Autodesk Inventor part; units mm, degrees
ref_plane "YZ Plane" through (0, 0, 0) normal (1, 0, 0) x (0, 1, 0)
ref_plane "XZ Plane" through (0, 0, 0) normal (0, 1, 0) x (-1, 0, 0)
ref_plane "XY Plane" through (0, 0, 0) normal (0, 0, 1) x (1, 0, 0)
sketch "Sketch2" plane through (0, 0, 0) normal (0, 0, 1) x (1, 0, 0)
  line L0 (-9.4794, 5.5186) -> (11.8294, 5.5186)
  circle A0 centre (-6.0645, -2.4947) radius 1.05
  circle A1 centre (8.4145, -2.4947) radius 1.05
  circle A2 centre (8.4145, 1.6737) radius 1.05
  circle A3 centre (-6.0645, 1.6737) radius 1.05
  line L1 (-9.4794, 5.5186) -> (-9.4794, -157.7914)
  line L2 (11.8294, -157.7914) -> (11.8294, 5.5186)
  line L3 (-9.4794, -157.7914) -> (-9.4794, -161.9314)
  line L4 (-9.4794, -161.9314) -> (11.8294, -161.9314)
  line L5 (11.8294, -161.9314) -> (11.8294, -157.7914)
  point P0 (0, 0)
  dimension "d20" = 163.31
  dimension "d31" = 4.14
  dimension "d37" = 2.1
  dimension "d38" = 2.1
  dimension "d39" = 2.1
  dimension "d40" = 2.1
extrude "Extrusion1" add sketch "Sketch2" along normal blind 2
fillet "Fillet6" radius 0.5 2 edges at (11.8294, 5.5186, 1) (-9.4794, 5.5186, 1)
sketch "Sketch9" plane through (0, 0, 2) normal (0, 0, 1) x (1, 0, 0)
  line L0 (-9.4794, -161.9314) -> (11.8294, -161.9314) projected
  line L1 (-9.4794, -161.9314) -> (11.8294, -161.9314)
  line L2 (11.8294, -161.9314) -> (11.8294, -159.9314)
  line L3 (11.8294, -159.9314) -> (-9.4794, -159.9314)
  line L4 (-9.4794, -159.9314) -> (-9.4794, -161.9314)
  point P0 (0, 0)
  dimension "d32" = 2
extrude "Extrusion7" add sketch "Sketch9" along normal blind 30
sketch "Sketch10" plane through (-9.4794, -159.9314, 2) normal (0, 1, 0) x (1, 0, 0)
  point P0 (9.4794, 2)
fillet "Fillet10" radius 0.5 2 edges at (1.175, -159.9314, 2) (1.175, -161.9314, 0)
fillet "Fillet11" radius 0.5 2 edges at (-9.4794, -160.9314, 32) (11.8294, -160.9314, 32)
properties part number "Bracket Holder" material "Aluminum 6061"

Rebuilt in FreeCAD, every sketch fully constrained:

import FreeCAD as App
import Part
import Sketcher
from FreeCAD import Vector
Q = App.Units.Quantity


def edges_at(feature, points):
    """Names of the edges that pass closest to the given points."""
    edges = feature.Shape.Edges
    near = lambda p: min(range(len(edges)), key=lambda i: edges[i].distToShape(Part.Vertex(*p))[0])
    return sorted({f"Edge{near(p) + 1}" for p in points})


def add_polygon(sketch, points):
    """Adds a closed chain of lines whose ends are joined by coincident constraints."""
    first, n = sketch.GeometryCount, len(points)
    for a, b in zip(points, points[1:] + points[:1]):
        sketch.addGeometry(Part.LineSegment(App.Vector(*a, 0), App.Vector(*b, 0)), False)
    for i in range(n):
        sketch.addConstraint(Sketcher.Constraint("Coincident", first + i, 2, first + (i + 1) % n, 1))

doc = App.newDocument("Part")
params = doc.addObject("Spreadsheet::Sheet", "Params")
for row, (alias, value) in enumerate([
    ("sketch1_diameter", "2.1 mm"),
    ("sketch1_height", "167.45 mm"),
    ("pad1_length", "2 mm"),
    ("fillet_radius", "0.5 mm"),
    ("sketch2_height", "2 mm"),
    ("pad2_length", "30 mm"),
    ("fillet2_radius", "0.5 mm"),
    ("fillet3_radius", "0.5 mm"),
], start=1):
    params.set(f"A{row}", alias)
    params.set(f"B{row}", "=" + value)
    params.setAlias(f"B{row}", alias)

body = doc.addObject("PartDesign::Body", "Body")

# Sketch on XY plane
sketch1 = body.newObject("Sketcher::SketchObject", "Sketch")
sketch1.AttachmentSupport = (doc.getObject("XY_Plane"), [""])
sketch1.MapMode = "FlatFace"
add_polygon(sketch1, [(11.8, 5.5), (-9.5, 5.5), (-9.5, -161.9), (11.8, -161.9)])  # lines 0-3
sketch1.addGeometry(Part.Circle(Vector(-6.1, -2.5, 0), Vector(0, 0, 1), 1.1), False)  # 4
sketch1.addGeometry(Part.Circle(Vector(-6.1, 1.7, 0), Vector(0, 0, 1), 1.1), False)  # 5
sketch1.addGeometry(Part.Circle(Vector(8.4, -2.5, 0), Vector(0, 0, 1), 1.1), False)  # 6
sketch1.addGeometry(Part.Circle(Vector(8.4, 1.7, 0), Vector(0, 0, 1), 1.1), False)  # 7
sketch1.addConstraint(Sketcher.Constraint("Horizontal", 0))
sketch1.addConstraint(Sketcher.Constraint("Vertical", 1))
sketch1.addConstraint(Sketcher.Constraint("Horizontal", 2))
sketch1.addConstraint(Sketcher.Constraint("Vertical", 3))
sketch1.addConstraint(Sketcher.Constraint("Equal", 4, 5))
sketch1.addConstraint(Sketcher.Constraint("Equal", 5, 6))
sketch1.addConstraint(Sketcher.Constraint("Equal", 6, 7))
sketch1.addConstraint(Sketcher.Constraint("Horizontal", 4, 3, 6, 3))
sketch1.addConstraint(Sketcher.Constraint("Horizontal", 5, 3, 7, 3))
sketch1.addConstraint(Sketcher.Constraint("Vertical", 4, 3, 5, 3))
sketch1.addConstraint(Sketcher.Constraint("Vertical", 6, 3, 7, 3))
sketch1.addConstraint(Sketcher.Constraint("Diameter", 4, Q("2.1 mm")))
sketch1.addConstraint(Sketcher.Constraint("DistanceY", 1, 2, 1, 1, Q("167.45 mm")))
sketch1.addConstraint(Sketcher.Constraint("DistanceX", 0, 2, 0, 1, Q("21.3088 mm")))
sketch1.addConstraint(Sketcher.Constraint("DistanceX", 4, 3, 6, 3, Q("14.479 mm")))
sketch1.addConstraint(Sketcher.Constraint("DistanceX", 0, 2, 5, 3, Q("3.415 mm")))
sketch1.addConstraint(Sketcher.Constraint("DistanceY", 5, 3, 0, 2, Q("3.845 mm")))
sketch1.addConstraint(Sketcher.Constraint("DistanceX", 4, 3, -1, 1, Q("6.0645 mm")))
sketch1.addConstraint(Sketcher.Constraint("DistanceY", 4, 3, -1, 1, Q("2.4947 mm")))
sketch1.addConstraint(Sketcher.Constraint("DistanceY", -1, 1, 5, 3, Q("1.6737 mm")))
sketch1.setExpression("Constraints[15]", "Params.sketch1_diameter")
sketch1.setExpression("Constraints[16]", "Params.sketch1_height")
pad1 = body.newObject("PartDesign::Pad", "Pad")
pad1.Profile = sketch1
pad1.setExpression("Length", "Params.pad1_length")
doc.recompute()

fillet = body.newObject("PartDesign::Fillet", "Fillet")
fillet.Base = (pad1, edges_at(pad1, [(11.829, 5.519, 1), (-9.479, 5.519, 1)]))
fillet.setExpression("Radius", "Params.fillet_radius")

# Sketch on XY plane
sketch2 = body.newObject("Sketcher::SketchObject", "Sketch001")
sketch2.AttachmentSupport = (doc.getObject("XY_Plane"), [""])
sketch2.MapMode = "FlatFace"
sketch2.AttachmentOffset = App.Placement(Vector(0, 0, 2), App.Rotation())
add_polygon(sketch2, [(-9.5, -159.9), (-9.5, -161.9), (11.8, -161.9), (11.8, -159.9)])  # lines 0-3
sketch2.addConstraint(Sketcher.Constraint("Vertical", 0))
sketch2.addConstraint(Sketcher.Constraint("Horizontal", 1))
sketch2.addConstraint(Sketcher.Constraint("Vertical", 2))
sketch2.addConstraint(Sketcher.Constraint("Horizontal", 3))
sketch2.addConstraint(Sketcher.Constraint("DistanceY", 0, 2, 0, 1, Q("2 mm")))
sketch2.addConstraint(Sketcher.Constraint("DistanceX", 1, 1, 1, 2, Q("21.3088 mm")))
sketch2.addConstraint(Sketcher.Constraint("DistanceX", 0, 2, -1, 1, Q("9.4794 mm")))
sketch2.addConstraint(Sketcher.Constraint("DistanceY", 0, 2, -1, 1, Q("161.9314 mm")))
sketch2.setExpression("Constraints[8]", "Params.sketch2_height")
pad2 = body.newObject("PartDesign::Pad", "Pad001")
pad2.Profile = sketch2
pad2.setExpression("Length", "Params.pad2_length")
doc.recompute()

fillet2 = body.newObject("PartDesign::Fillet", "Fillet001")
fillet2.Base = (pad2, edges_at(pad2, [(1.175, -159.931, 2), (1.175, -161.931, 0)]))
fillet2.setExpression("Radius", "Params.fillet2_radius")
doc.recompute()

fillet3 = body.newObject("PartDesign::Fillet", "Fillet002")
fillet3.Base = (fillet2, edges_at(fillet2, [(-9.479, -160.931, 32), (11.829, -160.931, 32)]))
fillet3.setExpression("Radius", "Params.fillet3_radius")

doc.recompute()
